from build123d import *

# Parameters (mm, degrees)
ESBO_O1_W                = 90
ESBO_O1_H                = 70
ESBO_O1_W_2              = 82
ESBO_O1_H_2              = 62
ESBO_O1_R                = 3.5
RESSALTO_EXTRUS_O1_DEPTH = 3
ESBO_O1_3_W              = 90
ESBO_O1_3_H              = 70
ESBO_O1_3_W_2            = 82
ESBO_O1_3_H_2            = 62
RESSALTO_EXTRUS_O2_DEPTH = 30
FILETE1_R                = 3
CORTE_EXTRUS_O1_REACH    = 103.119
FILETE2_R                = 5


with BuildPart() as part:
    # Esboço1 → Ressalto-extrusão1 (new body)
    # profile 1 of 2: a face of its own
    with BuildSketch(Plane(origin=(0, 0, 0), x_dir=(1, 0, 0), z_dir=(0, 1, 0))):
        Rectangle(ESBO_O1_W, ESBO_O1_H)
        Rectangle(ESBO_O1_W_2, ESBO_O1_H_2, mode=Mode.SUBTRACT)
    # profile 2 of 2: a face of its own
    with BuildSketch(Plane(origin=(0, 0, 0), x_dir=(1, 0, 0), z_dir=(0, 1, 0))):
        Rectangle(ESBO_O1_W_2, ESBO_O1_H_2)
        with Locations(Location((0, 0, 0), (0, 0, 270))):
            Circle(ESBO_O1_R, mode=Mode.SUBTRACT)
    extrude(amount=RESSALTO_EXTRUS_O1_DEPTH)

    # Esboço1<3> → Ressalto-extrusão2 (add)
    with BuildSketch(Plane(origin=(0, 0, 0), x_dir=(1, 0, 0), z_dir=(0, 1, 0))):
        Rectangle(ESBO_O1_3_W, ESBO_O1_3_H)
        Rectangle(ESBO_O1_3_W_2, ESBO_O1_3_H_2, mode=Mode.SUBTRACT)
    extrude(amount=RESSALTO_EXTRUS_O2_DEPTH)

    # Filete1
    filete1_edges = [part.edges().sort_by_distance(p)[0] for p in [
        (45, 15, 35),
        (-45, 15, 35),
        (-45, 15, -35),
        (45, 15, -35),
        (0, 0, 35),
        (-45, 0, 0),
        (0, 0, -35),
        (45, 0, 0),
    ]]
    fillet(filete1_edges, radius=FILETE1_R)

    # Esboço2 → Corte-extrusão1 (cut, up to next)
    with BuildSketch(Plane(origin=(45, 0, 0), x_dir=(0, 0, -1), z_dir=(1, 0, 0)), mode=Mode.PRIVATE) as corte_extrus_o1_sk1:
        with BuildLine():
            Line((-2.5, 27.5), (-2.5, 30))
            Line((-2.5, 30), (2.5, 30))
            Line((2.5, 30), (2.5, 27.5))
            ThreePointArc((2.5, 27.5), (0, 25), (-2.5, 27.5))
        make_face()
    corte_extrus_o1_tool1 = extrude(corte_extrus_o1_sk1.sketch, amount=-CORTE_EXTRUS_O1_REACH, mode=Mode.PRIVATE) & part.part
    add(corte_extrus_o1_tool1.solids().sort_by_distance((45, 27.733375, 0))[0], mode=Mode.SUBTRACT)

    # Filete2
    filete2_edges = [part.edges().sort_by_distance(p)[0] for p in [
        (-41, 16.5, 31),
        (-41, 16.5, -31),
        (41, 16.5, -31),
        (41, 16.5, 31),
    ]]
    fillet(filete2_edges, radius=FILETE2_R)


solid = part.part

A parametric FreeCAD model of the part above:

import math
import FreeCAD as App
import Part
import Sketcher


def edges_at(feature, points):
    """Names of the edges that pass closest to the given points."""
    edges = feature.Shape.Edges
    near = lambda p: min(range(len(edges)), key=lambda i: edges[i].distToShape(Part.Vertex(*p))[0])
    return sorted({f"Edge{near(p) + 1}" for p in points})


def add_polygon(sketch, points):
    """Adds a closed chain of lines whose ends are joined by coincident constraints."""
    first, n = sketch.GeometryCount, len(points)
    for a, b in zip(points, points[1:] + points[:1]):
        sketch.addGeometry(Part.LineSegment(App.Vector(*a, 0), App.Vector(*b, 0)), False)
    for i in range(n):
        sketch.addConstraint(Sketcher.Constraint("Coincident", first + i, 2, first + (i + 1) % n, 1))

doc = App.newDocument("Part")
body = doc.addObject("PartDesign::Body", "Body")

sketch1 = body.newObject("Sketcher::SketchObject", "Sketch")
sketch1.AttachmentSupport = (doc.getObject("XZ_Plane"), [""])
sketch1.MapMode = "FlatFace"
add_polygon(sketch1, [(-45, -35), (-45, 35), (45, 35), (45, -35)])
sketch1.addGeometry(Part.Circle(App.Vector(0, 0, 0), App.Vector(0, 0, 1), 3.5), False)
sketch1.addConstraint(Sketcher.Constraint("Vertical", 0))
sketch1.addConstraint(Sketcher.Constraint("Horizontal", 1))
sketch1.addConstraint(Sketcher.Constraint("Vertical", 2))
sketch1.addConstraint(Sketcher.Constraint("Horizontal", 3))
sketch1.addConstraint(Sketcher.Constraint("Coincident", 4, 3, -1, 1))
sketch1.addConstraint(Sketcher.Constraint("Symmetric", 0, 2, 2, 2, -1, 1))
sketch1.addConstraint(Sketcher.Constraint("Diameter", 4, 7.0))
sketch1.addConstraint(Sketcher.Constraint("DistanceX", 1, 1, 1, 2, 90.0))
sketch1.addConstraint(Sketcher.Constraint("DistanceY", 0, 1, 0, 2, 70.0))
pad1 = body.newObject("PartDesign::Pad", "Pad")
pad1.Profile = sketch1
pad1.Length = 3
pad1.Reversed = True

sketch2 = body.newObject("Sketcher::SketchObject", "Sketch001")
sketch2.AttachmentSupport = (doc.getObject("XZ_Plane"), [""])
sketch2.MapMode = "FlatFace"
add_polygon(sketch2, [(-45, -35), (-45, 35), (45, 35), (45, -35)])
add_polygon(sketch2, [(41, 31), (-41, 31), (-41, -31), (41, -31)])
sketch2.addConstraint(Sketcher.Constraint("Vertical", 0))
sketch2.addConstraint(Sketcher.Constraint("Horizontal", 1))
sketch2.addConstraint(Sketcher.Constraint("Vertical", 2))
sketch2.addConstraint(Sketcher.Constraint("Horizontal", 3))
sketch2.addConstraint(Sketcher.Constraint("Horizontal", 4))
sketch2.addConstraint(Sketcher.Constraint("Vertical", 5))
sketch2.addConstraint(Sketcher.Constraint("Horizontal", 6))
sketch2.addConstraint(Sketcher.Constraint("Vertical", 7))
sketch2.addConstraint(Sketcher.Constraint("Symmetric", 0, 2, 2, 2, -1, 1))
sketch2.addConstraint(Sketcher.Constraint("Symmetric", 4, 2, 6, 2, -1, 1))
sketch2.addConstraint(Sketcher.Constraint("DistanceX", 1, 1, 1, 2, 90.0))
sketch2.addConstraint(Sketcher.Constraint("DistanceX", 4, 2, 4, 1, 82.0))
sketch2.addConstraint(Sketcher.Constraint("DistanceY", 0, 1, 0, 2, 70.0))
sketch2.addConstraint(Sketcher.Constraint("DistanceY", 5, 2, 5, 1, 62.0))
pad2 = body.newObject("PartDesign::Pad", "Pad001")
pad2.Profile = sketch2
pad2.Length = 30
pad2.Reversed = True
doc.recompute()

fillet = body.newObject("PartDesign::Fillet", "Fillet")
fillet.Base = (pad2, edges_at(pad2, [
    (45, 15, 35),
    (-45, 15, 35),
    (-45, 15, -35),
    (45, 15, -35),
    (0, 0, 35),
    (-45, 0, 0),
    (0, 0, -35),
    (45, 0, 0),
]))
fillet.Radius = 3

sketch3 = body.newObject("Sketcher::SketchObject", "Sketch002")
sketch3.AttachmentSupport = (doc.getObject("YZ_Plane"), [""])
sketch3.MapMode = "FlatFace"
sketch3.AttachmentOffset = App.Placement(App.Vector(0, 0, 45), App.Rotation())
sketch3.addGeometry(Part.LineSegment(App.Vector(30, 2.5, 0), App.Vector(27.5, 2.5, 0)), False)
sketch3.addGeometry(Part.ArcOfCircle(Part.Circle(App.Vector(27.5, 0, 0), App.Vector(0, 0, 1), 2.5), math.radians(90), math.radians(270)), False)
sketch3.addGeometry(Part.LineSegment(App.Vector(27.5, -2.5, 0), App.Vector(30, -2.5, 0)), False)
sketch3.addGeometry(Part.LineSegment(App.Vector(30, -2.5, 0), App.Vector(30, 2.5, 0)), False)
sketch3.addConstraint(Sketcher.Constraint("Tangent", 0, 2, 1, 1))
sketch3.addConstraint(Sketcher.Constraint("Tangent", 1, 2, 2, 1))
sketch3.addConstraint(Sketcher.Constraint("Coincident", 2, 2, 3, 1))
sketch3.addConstraint(Sketcher.Constraint("Coincident", 3, 2, 0, 1))
sketch3.addConstraint(Sketcher.Constraint("Horizontal", 0))
sketch3.addConstraint(Sketcher.Constraint("Horizontal", 2))
sketch3.addConstraint(Sketcher.Constraint("Vertical", 3))
sketch3.addConstraint(Sketcher.Constraint("PointOnObject", 1, 3, -1))
sketch3.addConstraint(Sketcher.Constraint("Radius", 1, 2.5))
sketch3.addConstraint(Sketcher.Constraint("DistanceX", 0, 2, 0, 1, 2.5))
sketch3.addConstraint(Sketcher.Constraint("DistanceX", -1, 1, 2, 2, 30.0))
pocket1 = body.newObject("PartDesign::Pocket", "Pocket")
pocket1.Profile = sketch3
pocket1.Type = "UpToFirst"
doc.recompute()

fillet2 = body.newObject("PartDesign::Fillet", "Fillet001")
fillet2.Base = (pocket1, edges_at(pocket1, [
    (-41, 16.5, 31),
    (-41, 16.5, -31),
    (41, 16.5, -31),
    (41, 16.5, 31),
]))
fillet2.Radius = 5

doc.recompute()
